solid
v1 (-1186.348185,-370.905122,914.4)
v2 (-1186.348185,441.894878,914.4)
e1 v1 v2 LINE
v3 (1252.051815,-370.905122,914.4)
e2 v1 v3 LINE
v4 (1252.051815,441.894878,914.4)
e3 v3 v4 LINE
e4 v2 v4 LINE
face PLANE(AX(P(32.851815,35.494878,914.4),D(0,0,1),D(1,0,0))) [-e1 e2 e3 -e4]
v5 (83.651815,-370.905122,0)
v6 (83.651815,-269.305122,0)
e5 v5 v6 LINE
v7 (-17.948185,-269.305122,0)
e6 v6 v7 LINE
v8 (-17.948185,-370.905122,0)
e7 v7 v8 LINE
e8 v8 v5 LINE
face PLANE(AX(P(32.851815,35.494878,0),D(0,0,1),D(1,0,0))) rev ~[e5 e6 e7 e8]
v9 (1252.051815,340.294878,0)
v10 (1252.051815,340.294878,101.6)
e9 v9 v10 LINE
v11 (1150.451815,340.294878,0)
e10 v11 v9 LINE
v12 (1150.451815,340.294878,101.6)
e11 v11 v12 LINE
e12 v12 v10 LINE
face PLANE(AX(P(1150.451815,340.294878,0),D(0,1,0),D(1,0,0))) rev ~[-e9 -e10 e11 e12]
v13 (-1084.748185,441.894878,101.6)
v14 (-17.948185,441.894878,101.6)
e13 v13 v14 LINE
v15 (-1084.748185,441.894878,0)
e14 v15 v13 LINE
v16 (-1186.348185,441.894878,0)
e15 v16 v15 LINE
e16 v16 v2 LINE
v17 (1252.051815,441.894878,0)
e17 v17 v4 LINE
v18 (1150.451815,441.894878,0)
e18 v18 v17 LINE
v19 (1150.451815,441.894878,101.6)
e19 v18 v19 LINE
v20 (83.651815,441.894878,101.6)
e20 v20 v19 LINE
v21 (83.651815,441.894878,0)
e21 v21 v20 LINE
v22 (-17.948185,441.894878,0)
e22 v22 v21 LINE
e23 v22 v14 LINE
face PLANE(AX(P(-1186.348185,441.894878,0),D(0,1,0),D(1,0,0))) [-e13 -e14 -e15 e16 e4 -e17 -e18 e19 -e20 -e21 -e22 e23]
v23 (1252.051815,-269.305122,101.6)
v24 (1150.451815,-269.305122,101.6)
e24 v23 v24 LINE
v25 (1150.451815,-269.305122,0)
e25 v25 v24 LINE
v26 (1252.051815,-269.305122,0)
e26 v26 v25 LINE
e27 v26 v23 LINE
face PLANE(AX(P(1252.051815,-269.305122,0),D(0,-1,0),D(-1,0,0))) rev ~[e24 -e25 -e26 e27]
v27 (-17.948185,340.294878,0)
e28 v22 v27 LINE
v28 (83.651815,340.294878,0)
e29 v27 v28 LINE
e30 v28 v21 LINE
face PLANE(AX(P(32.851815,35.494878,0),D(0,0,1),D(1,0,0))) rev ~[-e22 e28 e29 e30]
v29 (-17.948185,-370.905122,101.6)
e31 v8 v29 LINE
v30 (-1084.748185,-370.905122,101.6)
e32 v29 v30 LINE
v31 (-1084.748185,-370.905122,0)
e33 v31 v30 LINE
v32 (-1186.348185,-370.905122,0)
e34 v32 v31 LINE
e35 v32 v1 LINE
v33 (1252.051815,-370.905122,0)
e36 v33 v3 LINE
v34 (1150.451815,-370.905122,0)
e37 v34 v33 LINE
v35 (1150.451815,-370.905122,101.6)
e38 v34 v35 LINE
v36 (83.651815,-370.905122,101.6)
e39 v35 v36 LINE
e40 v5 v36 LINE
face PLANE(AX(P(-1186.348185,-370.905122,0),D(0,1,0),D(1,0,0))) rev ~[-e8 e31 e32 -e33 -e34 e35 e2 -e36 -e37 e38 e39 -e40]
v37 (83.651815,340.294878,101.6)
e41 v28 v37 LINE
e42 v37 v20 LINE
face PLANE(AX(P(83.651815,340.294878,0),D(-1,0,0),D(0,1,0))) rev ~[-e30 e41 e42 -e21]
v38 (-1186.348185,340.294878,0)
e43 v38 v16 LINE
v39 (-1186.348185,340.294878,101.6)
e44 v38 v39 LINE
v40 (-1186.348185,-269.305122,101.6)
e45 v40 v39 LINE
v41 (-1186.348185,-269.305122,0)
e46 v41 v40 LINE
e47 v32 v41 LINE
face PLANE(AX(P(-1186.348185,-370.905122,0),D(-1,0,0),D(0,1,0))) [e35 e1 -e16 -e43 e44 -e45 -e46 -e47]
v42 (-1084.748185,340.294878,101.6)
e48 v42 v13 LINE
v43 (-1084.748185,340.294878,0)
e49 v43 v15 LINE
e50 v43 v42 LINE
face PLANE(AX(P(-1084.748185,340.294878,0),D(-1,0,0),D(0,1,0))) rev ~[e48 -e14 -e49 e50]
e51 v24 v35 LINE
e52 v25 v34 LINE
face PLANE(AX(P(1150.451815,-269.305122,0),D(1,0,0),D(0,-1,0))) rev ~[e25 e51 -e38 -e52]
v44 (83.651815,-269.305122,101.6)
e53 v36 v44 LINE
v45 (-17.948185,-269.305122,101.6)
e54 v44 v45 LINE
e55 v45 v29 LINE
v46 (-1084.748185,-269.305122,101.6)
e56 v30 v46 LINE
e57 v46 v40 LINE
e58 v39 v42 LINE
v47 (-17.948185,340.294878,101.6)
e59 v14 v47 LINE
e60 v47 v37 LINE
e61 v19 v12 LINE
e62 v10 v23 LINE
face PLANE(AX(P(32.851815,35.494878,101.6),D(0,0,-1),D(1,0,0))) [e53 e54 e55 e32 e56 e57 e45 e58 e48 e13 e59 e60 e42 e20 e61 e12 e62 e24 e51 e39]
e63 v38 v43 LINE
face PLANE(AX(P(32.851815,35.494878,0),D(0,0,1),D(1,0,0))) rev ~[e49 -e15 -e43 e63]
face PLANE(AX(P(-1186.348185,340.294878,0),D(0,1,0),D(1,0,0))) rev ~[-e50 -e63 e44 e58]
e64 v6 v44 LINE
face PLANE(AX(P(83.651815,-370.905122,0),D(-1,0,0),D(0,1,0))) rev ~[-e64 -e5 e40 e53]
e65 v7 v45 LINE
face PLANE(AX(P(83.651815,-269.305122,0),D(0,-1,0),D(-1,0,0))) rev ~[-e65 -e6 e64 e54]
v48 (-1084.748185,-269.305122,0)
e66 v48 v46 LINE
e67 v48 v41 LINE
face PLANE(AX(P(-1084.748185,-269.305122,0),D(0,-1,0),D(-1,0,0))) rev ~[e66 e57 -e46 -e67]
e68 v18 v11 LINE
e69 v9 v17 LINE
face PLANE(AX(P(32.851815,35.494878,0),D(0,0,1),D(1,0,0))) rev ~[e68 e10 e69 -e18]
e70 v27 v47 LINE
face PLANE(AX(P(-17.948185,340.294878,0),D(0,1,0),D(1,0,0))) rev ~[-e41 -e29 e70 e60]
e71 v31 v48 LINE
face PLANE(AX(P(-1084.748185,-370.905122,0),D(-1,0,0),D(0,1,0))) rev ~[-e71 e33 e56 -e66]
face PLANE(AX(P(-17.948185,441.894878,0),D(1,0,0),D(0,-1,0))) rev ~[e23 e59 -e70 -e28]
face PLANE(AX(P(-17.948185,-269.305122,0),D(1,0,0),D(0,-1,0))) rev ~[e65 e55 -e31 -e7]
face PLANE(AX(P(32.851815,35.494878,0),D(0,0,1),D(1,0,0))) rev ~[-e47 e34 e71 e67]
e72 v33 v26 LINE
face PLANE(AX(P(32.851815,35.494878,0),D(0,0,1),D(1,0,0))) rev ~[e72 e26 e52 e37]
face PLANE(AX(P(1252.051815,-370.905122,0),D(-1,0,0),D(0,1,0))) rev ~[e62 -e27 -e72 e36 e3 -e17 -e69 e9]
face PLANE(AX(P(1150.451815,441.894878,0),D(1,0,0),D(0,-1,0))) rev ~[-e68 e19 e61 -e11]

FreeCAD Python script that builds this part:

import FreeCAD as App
import Part
import Sketcher
from FreeCAD import Vector
Q = App.Units.Quantity

doc = App.newDocument("Part")
params = doc.addObject("Spreadsheet::Sheet", "Params")
for row, (alias, value) in enumerate([
    ("sketch1_width", "96 in"),
    ("sketch1_height", "32 in"),
    ("pad1_length", "36 in"),
    ("sketch2_width", "4 in"),
    ("sketch2_width2", "42 in"),
    ("sketch2_height", "24 in"),
    ("pocket1_length", "4 in"),
], start=1):
    params.set(f"A{row}", alias)
    params.set(f"B{row}", "=" + value)
    params.setAlias(f"B{row}", alias)

body = doc.addObject("PartDesign::Body", "Body")

# Sketch on XY plane
sketch1 = doc.addObject("Sketcher::SketchObject", "Sketch")
body.addObject(sketch1)
sketch1.AttachmentSupport = (doc.XY_Plane, [""])
sketch1.MapMode = "FlatFace"
sketch1.addGeometry([
    Part.LineSegment(Vector(-1186.348185, 441.894878, 0), Vector(-1186.348185, -370.905122, 0)),
    Part.LineSegment(Vector(-1186.348185, -370.905122, 0), Vector(1252.051815, -370.905122, 0)),
    Part.LineSegment(Vector(1252.051815, -370.905122, 0), Vector(1252.051815, 441.894878, 0)),
    Part.LineSegment(Vector(1252.051815, 441.894878, 0), Vector(-1186.348185, 441.894878, 0)),
], False)
sketch1.addConstraint([
    Sketcher.Constraint("Coincident", 0, 2, 1, 1),
    Sketcher.Constraint("Coincident", 1, 2, 2, 1),
    Sketcher.Constraint("Coincident", 2, 2, 3, 1),
    Sketcher.Constraint("Coincident", 3, 2, 0, 1),
    Sketcher.Constraint("Vertical", 0),
    Sketcher.Constraint("Horizontal", 1),
    Sketcher.Constraint("Vertical", 2),
    Sketcher.Constraint("Horizontal", 3),
    Sketcher.Constraint("DistanceX", 1, 1, 1, 2, Q("96 in")),
    Sketcher.Constraint("DistanceY", 0, 2, 0, 1, Q("32 in")),
    Sketcher.Constraint("DistanceY", 0, 2, -1, 1, 370.905122),
    Sketcher.Constraint("DistanceX", 0, 2, -1, 1, 1186.348185),
])
sketch1.setExpression("Constraints[8]", "Params.sketch1_width")
sketch1.setExpression("Constraints[9]", "Params.sketch1_height")
pad1 = doc.addObject("PartDesign::Pad", "Pad")
body.addObject(pad1)
pad1.Profile = sketch1
pad1.setExpression("Length", "Params.pad1_length")

# Sketch on XY plane
sketch2 = doc.addObject("Sketcher::SketchObject", "Sketch001")
body.addObject(sketch2)
sketch2.AttachmentSupport = (doc.XY_Plane, [""])
sketch2.MapMode = "FlatFace"
sketch2.addGeometry([
    Part.LineSegment(Vector(-1084.748185, -269.305122, 0), Vector(-1186.348185, -269.305122, 0)),  # 0
    Part.LineSegment(Vector(-1186.348185, -269.305122, 0), Vector(-1186.348185, 340.294878, 0)),  # 1
    Part.LineSegment(Vector(-1186.348185, 340.294878, 0), Vector(-1084.748185, 340.294878, 0)),  # 2
    Part.LineSegment(Vector(-1084.748185, 340.294878, 0), Vector(-1084.748185, 441.894878, 0)),  # 3
    Part.LineSegment(Vector(-1084.748185, 441.894878, 0), Vector(-17.948185, 441.894878, 0)),  # 4
    Part.LineSegment(Vector(-17.948185, 441.894878, 0), Vector(-17.948185, 340.294878, 0)),  # 5
    Part.LineSegment(Vector(-17.948185, 340.294878, 0), Vector(83.651815, 340.294878, 0)),  # 6
    Part.LineSegment(Vector(83.651815, 340.294878, 0), Vector(83.651815, 441.894878, 0)),  # 7
    Part.LineSegment(Vector(83.651815, 441.894878, 0), Vector(1150.451815, 441.894878, 0)),  # 8
    Part.LineSegment(Vector(1150.451815, 441.894878, 0), Vector(1150.451815, 340.294878, 0)),  # 9
    Part.LineSegment(Vector(1150.451815, 340.294878, 0), Vector(1252.051815, 340.294878, 0)),  # 10
    Part.LineSegment(Vector(1252.051815, 340.294878, 0), Vector(1252.051815, -269.305122, 0)),  # 11
    Part.LineSegment(Vector(1252.051815, -269.305122, 0), Vector(1150.451815, -269.305122, 0)),  # 12
    Part.LineSegment(Vector(1150.451815, -269.305122, 0), Vector(1150.451815, -370.905122, 0)),  # 13
    Part.LineSegment(Vector(1150.451815, -370.905122, 0), Vector(83.651815, -370.905122, 0)),  # 14
    Part.LineSegment(Vector(83.651815, -370.905122, 0), Vector(83.651815, -269.305122, 0)),  # 15
    Part.LineSegment(Vector(83.651815, -269.305122, 0), Vector(-17.948185, -269.305122, 0)),  # 16
    Part.LineSegment(Vector(-17.948185, -269.305122, 0), Vector(-17.948185, -370.905122, 0)),  # 17
    Part.LineSegment(Vector(-17.948185, -370.905122, 0), Vector(-1084.748185, -370.905122, 0)),  # 18
    Part.LineSegment(Vector(-1084.748185, -370.905122, 0), Vector(-1084.748185, -269.305122, 0)),  # 19
], False)
sketch2.addConstraint([
    Sketcher.Constraint("Coincident", 0, 2, 1, 1),
    Sketcher.Constraint("Coincident", 1, 2, 2, 1),
    Sketcher.Constraint("Coincident", 2, 2, 3, 1),
    Sketcher.Constraint("Coincident", 3, 2, 4, 1),
    Sketcher.Constraint("Coincident", 4, 2, 5, 1),
    Sketcher.Constraint("Coincident", 5, 2, 6, 1),
    Sketcher.Constraint("Coincident", 6, 2, 7, 1),
    Sketcher.Constraint("Coincident", 7, 2, 8, 1),
    Sketcher.Constraint("Coincident", 8, 2, 9, 1),
    Sketcher.Constraint("Coincident", 9, 2, 10, 1),
    Sketcher.Constraint("Coincident", 10, 2, 11, 1),
    Sketcher.Constraint("Coincident", 11, 2, 12, 1),
    Sketcher.Constraint("Coincident", 12, 2, 13, 1),
    Sketcher.Constraint("Coincident", 13, 2, 14, 1),
    Sketcher.Constraint("Coincident", 14, 2, 15, 1),
    Sketcher.Constraint("Coincident", 15, 2, 16, 1),
    Sketcher.Constraint("Coincident", 16, 2, 17, 1),
    Sketcher.Constraint("Coincident", 17, 2, 18, 1),
    Sketcher.Constraint("Coincident", 18, 2, 19, 1),
    Sketcher.Constraint("Coincident", 19, 2, 0, 1),
    Sketcher.Constraint("Horizontal", 0),
    Sketcher.Constraint("Vertical", 1),
    Sketcher.Constraint("Horizontal", 2),
    Sketcher.Constraint("Vertical", 3),
    Sketcher.Constraint("Horizontal", 4),
    Sketcher.Constraint("Vertical", 5),
    Sketcher.Constraint("Horizontal", 6),
    Sketcher.Constraint("Vertical", 7),
    Sketcher.Constraint("Horizontal", 8),
    Sketcher.Constraint("Vertical", 9),
    Sketcher.Constraint("Horizontal", 10),
    Sketcher.Constraint("Vertical", 11),
    Sketcher.Constraint("Horizontal", 12),
    Sketcher.Constraint("Vertical", 13),
    Sketcher.Constraint("Horizontal", 14),
    Sketcher.Constraint("Vertical", 15),
    Sketcher.Constraint("Horizontal", 16),
    Sketcher.Constraint("Vertical", 17),
    Sketcher.Constraint("Horizontal", 18),
    Sketcher.Constraint("Vertical", 19),
    Sketcher.Constraint("Horizontal", 2, 2, 5, 2),
    Sketcher.Constraint("Horizontal", 4, 2, 7, 2),
    Sketcher.Constraint("Horizontal", 6, 2, 9, 2),
    Sketcher.Constraint("Horizontal", 0, 2, 11, 2),
    Sketcher.Constraint("Horizontal", 12, 2, 15, 2),
    Sketcher.Constraint("Horizontal", 14, 2, 17, 2),
    Sketcher.Constraint("Vertical", 9, 2, 12, 2),
    Sketcher.Constraint("Vertical", 7, 2, 14, 2),
    Sketcher.Constraint("Vertical", 5, 2, 16, 2),
    Sketcher.Constraint("Vertical", 3, 2, 18, 2),
    Sketcher.Constraint("Equal", 2, 6),
    Sketcher.Constraint("Equal", 4, 8),
    Sketcher.Constraint("Equal", 6, 10),
    Sketcher.Constraint("Equal", 16, 3),
    Sketcher.Constraint("Equal", 9, 13),
    Sketcher.Constraint("DistanceX", 0, 2, 0, 1, Q("4 in")),
    Sketcher.Constraint("DistanceX", 4, 1, 4, 2, Q("42 in")),
    Sketcher.Constraint("DistanceY", 1, 1, 1, 2, Q("24 in")),
    Sketcher.Constraint("DistanceY", 0, 2, -1, 1, 269.305122),
    Sketcher.Constraint("DistanceX", 0, 2, -1, 1, 1186.348185),
])
sketch2.setExpression("Constraints[55]", "Params.sketch2_width")
sketch2.setExpression("Constraints[56]", "Params.sketch2_width2")
sketch2.setExpression("Constraints[57]", "Params.sketch2_height")
pocket1 = doc.addObject("PartDesign::Pocket", "Pocket")
body.addObject(pocket1)
pocket1.Profile = sketch2
pocket1.setExpression("Length", "Params.pocket1_length")
pocket1.Reversed = True

doc.recompute()
